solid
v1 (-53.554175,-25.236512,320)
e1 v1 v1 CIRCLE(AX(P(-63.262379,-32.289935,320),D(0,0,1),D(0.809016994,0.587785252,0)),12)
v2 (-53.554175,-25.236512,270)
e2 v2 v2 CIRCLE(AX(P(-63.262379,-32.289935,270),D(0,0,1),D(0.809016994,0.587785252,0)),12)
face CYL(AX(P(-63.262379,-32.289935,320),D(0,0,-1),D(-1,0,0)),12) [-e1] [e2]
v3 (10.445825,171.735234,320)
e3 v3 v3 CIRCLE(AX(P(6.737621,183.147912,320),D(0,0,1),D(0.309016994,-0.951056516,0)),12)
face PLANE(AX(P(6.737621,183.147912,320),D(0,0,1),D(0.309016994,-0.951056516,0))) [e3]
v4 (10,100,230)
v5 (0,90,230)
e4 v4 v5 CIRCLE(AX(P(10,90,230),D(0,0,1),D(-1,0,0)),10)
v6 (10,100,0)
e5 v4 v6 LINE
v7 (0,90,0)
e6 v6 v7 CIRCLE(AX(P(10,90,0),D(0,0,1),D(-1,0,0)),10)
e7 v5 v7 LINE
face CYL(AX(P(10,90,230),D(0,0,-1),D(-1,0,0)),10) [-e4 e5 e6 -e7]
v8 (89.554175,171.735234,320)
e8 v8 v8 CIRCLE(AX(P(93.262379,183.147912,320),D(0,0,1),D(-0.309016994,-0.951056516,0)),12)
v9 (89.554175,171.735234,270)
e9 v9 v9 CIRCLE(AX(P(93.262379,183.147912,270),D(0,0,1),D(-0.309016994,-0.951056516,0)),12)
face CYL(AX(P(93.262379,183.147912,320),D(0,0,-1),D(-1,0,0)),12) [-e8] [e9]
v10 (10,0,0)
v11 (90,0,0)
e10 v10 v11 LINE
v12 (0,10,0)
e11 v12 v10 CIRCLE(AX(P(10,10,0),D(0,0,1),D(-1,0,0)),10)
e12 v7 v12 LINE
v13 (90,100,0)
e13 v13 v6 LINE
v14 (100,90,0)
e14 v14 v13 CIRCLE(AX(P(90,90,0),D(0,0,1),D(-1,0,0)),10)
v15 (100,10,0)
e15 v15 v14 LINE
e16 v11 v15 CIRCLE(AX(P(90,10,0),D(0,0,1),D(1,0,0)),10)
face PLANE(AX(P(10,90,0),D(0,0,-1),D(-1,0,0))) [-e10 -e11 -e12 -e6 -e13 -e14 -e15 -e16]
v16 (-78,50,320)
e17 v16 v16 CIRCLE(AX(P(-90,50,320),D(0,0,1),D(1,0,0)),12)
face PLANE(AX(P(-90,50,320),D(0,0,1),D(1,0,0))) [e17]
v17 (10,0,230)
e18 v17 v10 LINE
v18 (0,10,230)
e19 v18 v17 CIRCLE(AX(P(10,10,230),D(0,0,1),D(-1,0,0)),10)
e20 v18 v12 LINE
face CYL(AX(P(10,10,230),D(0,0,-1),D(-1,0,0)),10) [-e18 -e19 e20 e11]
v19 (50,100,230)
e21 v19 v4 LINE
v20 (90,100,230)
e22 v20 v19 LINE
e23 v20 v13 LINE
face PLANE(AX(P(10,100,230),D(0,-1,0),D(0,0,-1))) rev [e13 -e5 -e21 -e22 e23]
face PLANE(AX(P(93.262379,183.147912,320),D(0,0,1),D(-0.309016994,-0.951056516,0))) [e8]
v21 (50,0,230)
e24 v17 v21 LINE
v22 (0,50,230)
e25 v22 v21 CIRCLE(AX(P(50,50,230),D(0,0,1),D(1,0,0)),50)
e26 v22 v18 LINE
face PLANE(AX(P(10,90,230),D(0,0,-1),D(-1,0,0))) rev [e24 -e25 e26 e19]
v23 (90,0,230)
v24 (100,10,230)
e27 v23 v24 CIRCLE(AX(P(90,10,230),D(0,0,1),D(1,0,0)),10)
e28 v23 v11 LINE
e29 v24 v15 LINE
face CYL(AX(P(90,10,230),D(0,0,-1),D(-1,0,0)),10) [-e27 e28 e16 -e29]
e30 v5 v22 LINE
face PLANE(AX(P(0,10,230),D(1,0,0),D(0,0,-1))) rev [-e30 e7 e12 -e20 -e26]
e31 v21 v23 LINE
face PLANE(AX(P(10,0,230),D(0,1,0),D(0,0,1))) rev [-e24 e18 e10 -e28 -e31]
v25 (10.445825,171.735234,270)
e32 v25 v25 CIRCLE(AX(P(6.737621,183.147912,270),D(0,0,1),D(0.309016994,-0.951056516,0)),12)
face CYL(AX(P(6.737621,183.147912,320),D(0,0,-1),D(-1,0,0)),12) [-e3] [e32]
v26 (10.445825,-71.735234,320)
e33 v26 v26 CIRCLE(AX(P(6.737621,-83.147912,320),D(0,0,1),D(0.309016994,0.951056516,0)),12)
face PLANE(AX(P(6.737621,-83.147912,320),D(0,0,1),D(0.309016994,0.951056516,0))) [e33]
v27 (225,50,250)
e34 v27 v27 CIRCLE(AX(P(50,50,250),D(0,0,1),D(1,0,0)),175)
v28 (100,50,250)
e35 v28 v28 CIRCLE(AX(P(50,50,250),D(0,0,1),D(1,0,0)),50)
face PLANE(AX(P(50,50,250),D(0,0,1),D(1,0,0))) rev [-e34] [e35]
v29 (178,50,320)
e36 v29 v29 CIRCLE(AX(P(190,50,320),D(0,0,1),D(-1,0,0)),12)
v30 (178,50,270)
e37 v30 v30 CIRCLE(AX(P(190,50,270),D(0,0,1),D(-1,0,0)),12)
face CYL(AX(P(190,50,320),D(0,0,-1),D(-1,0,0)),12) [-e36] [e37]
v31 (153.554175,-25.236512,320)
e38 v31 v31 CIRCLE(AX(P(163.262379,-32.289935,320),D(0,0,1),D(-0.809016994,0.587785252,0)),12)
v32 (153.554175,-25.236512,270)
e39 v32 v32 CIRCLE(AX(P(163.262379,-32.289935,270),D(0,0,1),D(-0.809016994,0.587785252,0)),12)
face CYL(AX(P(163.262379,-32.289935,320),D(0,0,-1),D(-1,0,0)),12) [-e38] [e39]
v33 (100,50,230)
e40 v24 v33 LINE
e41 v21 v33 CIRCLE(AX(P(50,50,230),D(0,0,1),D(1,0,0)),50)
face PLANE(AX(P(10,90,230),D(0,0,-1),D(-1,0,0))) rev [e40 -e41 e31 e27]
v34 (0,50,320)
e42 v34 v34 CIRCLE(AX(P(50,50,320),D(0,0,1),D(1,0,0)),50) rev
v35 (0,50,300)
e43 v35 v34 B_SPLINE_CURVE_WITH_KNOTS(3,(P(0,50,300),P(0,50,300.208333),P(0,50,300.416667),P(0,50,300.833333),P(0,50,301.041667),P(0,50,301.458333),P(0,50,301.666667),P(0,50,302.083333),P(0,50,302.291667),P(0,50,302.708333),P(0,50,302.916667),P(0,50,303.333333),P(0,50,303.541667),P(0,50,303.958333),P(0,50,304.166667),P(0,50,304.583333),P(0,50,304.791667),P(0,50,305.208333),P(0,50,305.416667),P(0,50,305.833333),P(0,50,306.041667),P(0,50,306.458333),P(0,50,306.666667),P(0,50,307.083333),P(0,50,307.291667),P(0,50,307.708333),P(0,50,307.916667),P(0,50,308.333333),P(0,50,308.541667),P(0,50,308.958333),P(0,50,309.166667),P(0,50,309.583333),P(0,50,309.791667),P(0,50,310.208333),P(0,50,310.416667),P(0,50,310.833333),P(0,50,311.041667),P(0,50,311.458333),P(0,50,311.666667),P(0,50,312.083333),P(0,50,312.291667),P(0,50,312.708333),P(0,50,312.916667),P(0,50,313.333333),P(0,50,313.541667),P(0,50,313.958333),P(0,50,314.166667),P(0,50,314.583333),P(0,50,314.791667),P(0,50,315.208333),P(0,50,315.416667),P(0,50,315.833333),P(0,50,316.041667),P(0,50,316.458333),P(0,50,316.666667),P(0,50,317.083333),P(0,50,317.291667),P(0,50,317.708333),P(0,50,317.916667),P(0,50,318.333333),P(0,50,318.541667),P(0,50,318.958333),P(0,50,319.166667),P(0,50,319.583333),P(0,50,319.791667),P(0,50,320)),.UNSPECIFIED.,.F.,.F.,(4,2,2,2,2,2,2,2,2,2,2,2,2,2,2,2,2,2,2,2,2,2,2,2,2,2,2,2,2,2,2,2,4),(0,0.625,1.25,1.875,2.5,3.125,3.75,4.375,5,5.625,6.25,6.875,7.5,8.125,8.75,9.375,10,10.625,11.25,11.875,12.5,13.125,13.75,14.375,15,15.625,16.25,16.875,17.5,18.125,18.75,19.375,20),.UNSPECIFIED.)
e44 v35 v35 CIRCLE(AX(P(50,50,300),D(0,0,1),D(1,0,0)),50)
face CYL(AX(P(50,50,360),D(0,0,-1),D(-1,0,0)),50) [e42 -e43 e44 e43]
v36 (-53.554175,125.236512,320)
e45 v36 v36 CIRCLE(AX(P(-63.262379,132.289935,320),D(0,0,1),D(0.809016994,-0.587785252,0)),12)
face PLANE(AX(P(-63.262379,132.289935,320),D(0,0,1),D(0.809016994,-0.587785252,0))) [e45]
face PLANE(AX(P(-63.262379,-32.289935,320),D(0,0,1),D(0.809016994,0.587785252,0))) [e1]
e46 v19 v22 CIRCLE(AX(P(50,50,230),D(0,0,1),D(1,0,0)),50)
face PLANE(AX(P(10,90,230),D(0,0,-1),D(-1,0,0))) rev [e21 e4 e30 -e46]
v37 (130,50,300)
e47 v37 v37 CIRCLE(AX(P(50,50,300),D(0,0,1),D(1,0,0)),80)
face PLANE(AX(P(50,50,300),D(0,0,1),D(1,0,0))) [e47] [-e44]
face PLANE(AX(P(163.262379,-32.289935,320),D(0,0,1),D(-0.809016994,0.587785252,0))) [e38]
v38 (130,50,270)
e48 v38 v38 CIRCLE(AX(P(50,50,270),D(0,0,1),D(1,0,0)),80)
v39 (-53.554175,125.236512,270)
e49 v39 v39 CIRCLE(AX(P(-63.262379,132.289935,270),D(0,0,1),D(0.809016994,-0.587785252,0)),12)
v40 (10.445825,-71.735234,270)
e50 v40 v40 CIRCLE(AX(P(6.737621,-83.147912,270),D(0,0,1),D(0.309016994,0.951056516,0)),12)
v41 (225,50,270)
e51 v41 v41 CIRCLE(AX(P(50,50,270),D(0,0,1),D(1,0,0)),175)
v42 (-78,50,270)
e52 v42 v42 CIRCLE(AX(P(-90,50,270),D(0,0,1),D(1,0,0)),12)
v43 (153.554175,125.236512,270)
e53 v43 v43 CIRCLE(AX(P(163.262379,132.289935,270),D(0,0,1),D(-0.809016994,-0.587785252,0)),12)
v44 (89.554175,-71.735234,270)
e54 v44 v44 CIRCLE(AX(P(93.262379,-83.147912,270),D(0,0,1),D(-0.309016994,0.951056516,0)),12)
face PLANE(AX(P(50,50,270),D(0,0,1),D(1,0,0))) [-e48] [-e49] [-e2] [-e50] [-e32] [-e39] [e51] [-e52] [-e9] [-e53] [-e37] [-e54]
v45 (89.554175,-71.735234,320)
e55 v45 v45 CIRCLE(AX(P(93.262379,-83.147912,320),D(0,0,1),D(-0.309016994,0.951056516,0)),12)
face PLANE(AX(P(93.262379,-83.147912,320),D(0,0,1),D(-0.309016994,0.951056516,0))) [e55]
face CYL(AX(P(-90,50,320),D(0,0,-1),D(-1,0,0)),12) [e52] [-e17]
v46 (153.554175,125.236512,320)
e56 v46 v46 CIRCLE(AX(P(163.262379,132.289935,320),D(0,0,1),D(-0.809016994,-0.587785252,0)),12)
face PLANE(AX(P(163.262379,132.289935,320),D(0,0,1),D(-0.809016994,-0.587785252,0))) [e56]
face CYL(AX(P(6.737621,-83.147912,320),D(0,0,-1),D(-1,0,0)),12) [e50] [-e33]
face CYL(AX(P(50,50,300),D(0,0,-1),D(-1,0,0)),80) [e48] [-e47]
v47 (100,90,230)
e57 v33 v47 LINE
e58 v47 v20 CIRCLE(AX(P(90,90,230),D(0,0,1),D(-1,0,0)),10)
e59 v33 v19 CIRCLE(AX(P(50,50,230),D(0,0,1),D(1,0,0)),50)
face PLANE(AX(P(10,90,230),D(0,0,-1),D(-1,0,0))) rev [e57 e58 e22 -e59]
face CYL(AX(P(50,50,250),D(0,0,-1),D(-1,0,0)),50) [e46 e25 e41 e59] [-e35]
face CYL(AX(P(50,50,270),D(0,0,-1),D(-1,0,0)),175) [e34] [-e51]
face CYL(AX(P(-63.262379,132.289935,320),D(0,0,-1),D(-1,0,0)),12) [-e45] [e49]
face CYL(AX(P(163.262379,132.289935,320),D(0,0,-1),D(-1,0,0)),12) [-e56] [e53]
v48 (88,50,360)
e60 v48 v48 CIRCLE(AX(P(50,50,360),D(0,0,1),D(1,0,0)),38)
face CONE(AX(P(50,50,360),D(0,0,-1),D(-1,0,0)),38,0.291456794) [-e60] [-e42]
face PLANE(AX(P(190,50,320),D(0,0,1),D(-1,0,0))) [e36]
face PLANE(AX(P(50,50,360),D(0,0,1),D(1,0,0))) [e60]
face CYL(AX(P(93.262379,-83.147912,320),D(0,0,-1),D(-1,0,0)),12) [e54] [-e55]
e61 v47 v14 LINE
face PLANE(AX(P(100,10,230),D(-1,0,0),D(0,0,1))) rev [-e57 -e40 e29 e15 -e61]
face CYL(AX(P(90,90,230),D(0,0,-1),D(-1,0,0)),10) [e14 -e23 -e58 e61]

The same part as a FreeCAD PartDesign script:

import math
import FreeCAD as App
import Part
import Sketcher


def edges_at(feature, points):
    """Names of the edges that pass closest to the given points."""
    edges = feature.Shape.Edges
    near = lambda p: min(range(len(edges)), key=lambda i: edges[i].distToShape(Part.Vertex(*p))[0])
    return sorted({f"Edge{near(p) + 1}" for p in points})

doc = App.newDocument("Part")
params = doc.addObject("Spreadsheet::Sheet", "Params")
for row, (alias, value) in enumerate([
    ("sketch1_radius", "10 mm"),
    ("sketch1_width", "80 mm"),
    ("pad1_length", "230 mm"),
    ("sketch2_diameter", "100 mm"),
    ("pad2_length", "20 mm"),
    ("sketch3_diameter", "350 mm"),
    ("pad3_length", "20 mm"),
    ("sketch4_diameter", "100 mm"),
    ("pad4_length", "90 mm"),
    ("chamfer_size", "40 mm"),
    ("chamfer_size2", "12 mm"),
    ("sketch5_diameter", "160 mm"),
    ("pad5_length", "30 mm"),
    ("sketch6_diameter", "24 mm"),
    ("pad6_length", "50 mm"),
], start=1):
    params.set(f"A{row}", alias)
    params.set(f"B{row}", "=" + value)
    params.setAlias(f"B{row}", alias)

body = doc.addObject("PartDesign::Body", "Body")

# Sketch on XY plane
sketch1 = body.newObject("Sketcher::SketchObject", "Sketch")
sketch1.AttachmentSupport = (doc.getObject("XY_Plane"), [""])
sketch1.MapMode = "FlatFace"
sketch1.addGeometry([
    Part.LineSegment(App.Vector(10, 0, 0), App.Vector(90, 0, 0)),  # 0
    Part.ArcOfCircle(Part.Circle(App.Vector(90, 10, 0), App.Vector(0, 0, 1), 10), math.radians(-90), math.radians(0)),  # 1
    Part.LineSegment(App.Vector(100, 10, 0), App.Vector(100, 90, 0)),  # 2
    Part.ArcOfCircle(Part.Circle(App.Vector(90, 90, 0), App.Vector(0, 0, 1), 10), math.radians(0), math.radians(90)),  # 3
    Part.LineSegment(App.Vector(90, 100, 0), App.Vector(10, 100, 0)),  # 4
    Part.ArcOfCircle(Part.Circle(App.Vector(10, 90, 0), App.Vector(0, 0, 1), 10), math.radians(90), math.radians(180)),  # 5
    Part.LineSegment(App.Vector(0, 90, 0), App.Vector(0, 10, 0)),  # 6
    Part.ArcOfCircle(Part.Circle(App.Vector(10, 10, 0), App.Vector(0, 0, 1), 10), math.radians(180), math.radians(270)),  # 7
], False)
sketch1.addConstraint([
    Sketcher.Constraint("Tangent", 0, 2, 1, 1),
    Sketcher.Constraint("Tangent", 1, 2, 2, 1),
    Sketcher.Constraint("Tangent", 2, 2, 3, 1),
    Sketcher.Constraint("Tangent", 3, 2, 4, 1),
    Sketcher.Constraint("Tangent", 4, 2, 5, 1),
    Sketcher.Constraint("Tangent", 5, 2, 6, 1),
    Sketcher.Constraint("Tangent", 6, 2, 7, 1),
    Sketcher.Constraint("Tangent", 7, 2, 0, 1),
    Sketcher.Constraint("Horizontal", 0),
    Sketcher.Constraint("Vertical", 2),
    Sketcher.Constraint("Horizontal", 4),
    Sketcher.Constraint("Vertical", 6),
    Sketcher.Constraint("Equal", 1, 3),
    Sketcher.Constraint("Equal", 3, 5),
    Sketcher.Constraint("Equal", 5, 7),
    Sketcher.Constraint("PointOnObject", 0, 2, -1),
    Sketcher.Constraint("PointOnObject", 5, 2, -2),
    Sketcher.Constraint("Equal", 4, 2),
    Sketcher.Constraint("Radius", 1, 10.0),
    Sketcher.Constraint("DistanceX", 0, 1, 0, 2, 80.0),
])
sketch1.setExpression("Constraints[18]", "Params.sketch1_radius")
sketch1.setExpression("Constraints[19]", "Params.sketch1_width")
pad1 = body.newObject("PartDesign::Pad", "Pad")
pad1.Profile = sketch1
pad1.setExpression("Length", "Params.pad1_length")

# Sketch on XY plane
sketch2 = body.newObject("Sketcher::SketchObject", "Sketch001")
sketch2.AttachmentSupport = (doc.getObject("XY_Plane"), [""])
sketch2.MapMode = "FlatFace"
sketch2.AttachmentOffset = App.Placement(App.Vector(0, 0, 230), App.Rotation())
sketch2.addGeometry(Part.Circle(App.Vector(50, 50, 0), App.Vector(0, 0, 1), 50), False)
sketch2.addConstraint([
    Sketcher.Constraint("Diameter", 0, 100.0),
    Sketcher.Constraint("DistanceX", -1, 1, 0, 3, 50.0),
    Sketcher.Constraint("DistanceY", -1, 1, 0, 3, 50.0),
])
sketch2.setExpression("Constraints[0]", "Params.sketch2_diameter")
pad2 = body.newObject("PartDesign::Pad", "Pad001")
pad2.Profile = sketch2
pad2.setExpression("Length", "Params.pad2_length")

# Sketch on XY plane
sketch3 = body.newObject("Sketcher::SketchObject", "Sketch002")
sketch3.AttachmentSupport = (doc.getObject("XY_Plane"), [""])
sketch3.MapMode = "FlatFace"
sketch3.AttachmentOffset = App.Placement(App.Vector(0, 0, 250), App.Rotation())
sketch3.addGeometry(Part.Circle(App.Vector(50, 50, 0), App.Vector(0, 0, 1), 175), False)
sketch3.addConstraint([
    Sketcher.Constraint("Diameter", 0, 350.0),
    Sketcher.Constraint("DistanceX", -1, 1, 0, 3, 50.0),
    Sketcher.Constraint("DistanceY", -1, 1, 0, 3, 50.0),
])
sketch3.setExpression("Constraints[0]", "Params.sketch3_diameter")
pad3 = body.newObject("PartDesign::Pad", "Pad002")
pad3.Profile = sketch3
pad3.setExpression("Length", "Params.pad3_length")

# Sketch on XY plane
sketch4 = body.newObject("Sketcher::SketchObject", "Sketch003")
sketch4.AttachmentSupport = (doc.getObject("XY_Plane"), [""])
sketch4.MapMode = "FlatFace"
sketch4.AttachmentOffset = App.Placement(App.Vector(0, 0, 270), App.Rotation())
sketch4.addGeometry(Part.Circle(App.Vector(50, 50, 0), App.Vector(0, 0, 1), 50), False)
sketch4.addConstraint([
    Sketcher.Constraint("Diameter", 0, 100.0),
    Sketcher.Constraint("DistanceX", -1, 1, 0, 3, 50.0),
    Sketcher.Constraint("DistanceY", -1, 1, 0, 3, 50.0),
])
sketch4.setExpression("Constraints[0]", "Params.sketch4_diameter")
pad4 = body.newObject("PartDesign::Pad", "Pad003")
pad4.Profile = sketch4
pad4.setExpression("Length", "Params.pad4_length")
doc.recompute()

chamfer = body.newObject("PartDesign::Chamfer", "Chamfer")
chamfer.Base = (pad4, edges_at(pad4, [(0, 50, 360)]))
chamfer.ChamferType = "Two distances"
chamfer.setExpression("Size", "Params.chamfer_size")
chamfer.setExpression("Size2", "Params.chamfer_size2")

# Sketch on XY plane
sketch5 = body.newObject("Sketcher::SketchObject", "Sketch004")
sketch5.AttachmentSupport = (doc.getObject("XY_Plane"), [""])
sketch5.MapMode = "FlatFace"
sketch5.AttachmentOffset = App.Placement(App.Vector(0, 0, 270), App.Rotation())
sketch5.addGeometry(Part.Circle(App.Vector(50, 50, 0), App.Vector(0, 0, 1), 80), False)
sketch5.addConstraint([
    Sketcher.Constraint("Diameter", 0, 160.0),
    Sketcher.Constraint("DistanceX", -1, 1, 0, 3, 50.0),
    Sketcher.Constraint("DistanceY", -1, 1, 0, 3, 50.0),
])
sketch5.setExpression("Constraints[0]", "Params.sketch5_diameter")
pad5 = body.newObject("PartDesign::Pad", "Pad004")
pad5.Profile = sketch5
pad5.setExpression("Length", "Params.pad5_length")

# Sketch on XY plane
sketch6 = body.newObject("Sketcher::SketchObject", "Sketch005")
sketch6.AttachmentSupport = (doc.getObject("XY_Plane"), [""])
sketch6.MapMode = "FlatFace"
sketch6.AttachmentOffset = App.Placement(App.Vector(0, 0, 270), App.Rotation())
sketch6.addGeometry(Part.Circle(App.Vector(-90, 50, 0), App.Vector(0, 0, 1), 12), False)
sketch6.addConstraint([
    Sketcher.Constraint("Diameter", 0, 24.0),
    Sketcher.Constraint("DistanceX", 0, 3, -1, 1, 90.0),
    Sketcher.Constraint("DistanceY", -1, 1, 0, 3, 50.0),
])
sketch6.setExpression("Constraints[0]", "Params.sketch6_diameter")
pad6 = body.newObject("PartDesign::Pad", "Pad005")
pad6.Profile = sketch6
pad6.setExpression("Length", "Params.pad6_length")
doc.recompute()

datumline = body.newObject("PartDesign::Line", "DatumLine")
datumline.Placement = App.Placement(App.Vector(50, 50, 0), App.Rotation(App.Vector(0, 0, 1), App.Vector(0, 0, 1)))
polarpattern = body.newObject("PartDesign::PolarPattern", "PolarPattern")
polarpattern.Originals = [pad6]
polarpattern.Axis = (datumline, [""])
polarpattern.Angle = 360
polarpattern.Occurrences = 10
body.Tip = polarpattern

doc.recompute()
